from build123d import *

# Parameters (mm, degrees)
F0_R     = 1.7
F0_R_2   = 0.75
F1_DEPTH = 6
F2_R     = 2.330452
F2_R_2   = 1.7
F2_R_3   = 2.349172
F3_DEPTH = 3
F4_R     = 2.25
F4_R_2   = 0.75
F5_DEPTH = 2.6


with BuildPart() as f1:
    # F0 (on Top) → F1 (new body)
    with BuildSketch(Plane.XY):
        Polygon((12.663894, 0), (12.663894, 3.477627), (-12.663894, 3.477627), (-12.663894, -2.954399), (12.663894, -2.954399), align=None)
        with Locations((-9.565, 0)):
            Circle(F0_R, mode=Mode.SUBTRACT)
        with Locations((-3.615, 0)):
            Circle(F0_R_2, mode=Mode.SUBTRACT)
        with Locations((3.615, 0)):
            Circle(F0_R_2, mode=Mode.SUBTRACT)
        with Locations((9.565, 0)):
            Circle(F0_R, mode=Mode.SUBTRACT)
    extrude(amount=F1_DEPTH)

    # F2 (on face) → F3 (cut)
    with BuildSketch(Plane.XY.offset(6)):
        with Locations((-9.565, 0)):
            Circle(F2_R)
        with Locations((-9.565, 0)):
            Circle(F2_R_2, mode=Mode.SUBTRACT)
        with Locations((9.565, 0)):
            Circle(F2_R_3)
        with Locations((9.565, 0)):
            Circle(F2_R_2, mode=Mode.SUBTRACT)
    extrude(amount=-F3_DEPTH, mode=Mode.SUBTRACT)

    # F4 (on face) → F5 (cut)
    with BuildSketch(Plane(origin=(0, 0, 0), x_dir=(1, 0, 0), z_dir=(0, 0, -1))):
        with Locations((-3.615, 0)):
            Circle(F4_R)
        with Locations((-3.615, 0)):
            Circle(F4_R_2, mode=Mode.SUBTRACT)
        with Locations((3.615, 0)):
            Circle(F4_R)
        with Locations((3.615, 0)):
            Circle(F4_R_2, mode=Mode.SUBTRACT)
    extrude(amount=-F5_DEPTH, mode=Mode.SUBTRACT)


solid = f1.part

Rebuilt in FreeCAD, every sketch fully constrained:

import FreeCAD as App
import Part
import Sketcher

V = App.Vector
Q = App.Units.Quantity


def add_polygon(sketch, points):
    """Adds a closed chain of lines whose ends are joined by coincident constraints."""
    first, n = sketch.GeometryCount, len(points)
    for a, b in zip(points, points[1:] + points[:1]):
        sketch.addGeometry(Part.LineSegment(App.Vector(*a, 0), App.Vector(*b, 0)), False)
    for i in range(n):
        sketch.addConstraint(Sketcher.Constraint("Coincident", first + i, 2, first + (i + 1) % n, 1))

doc = App.newDocument("Part")
body = doc.addObject("PartDesign::Body", "Body")

# Sketch on XY plane
sketch1 = body.newObject("Sketcher::SketchObject", "Sketch")
sketch1.AttachmentSupport = (doc.getObject("XY_Plane"), [""])
sketch1.MapMode = "FlatFace"
add_polygon(sketch1, [(12.7, 3.5), (-12.7, 3.5), (-12.7, -3), (12.7, -3)])  # lines 0-3
sketch1.addGeometry(Part.Circle(V(-9.6, 0, 0), V(0, 0, 1), 1.7), False)  # 4
sketch1.addGeometry(Part.Circle(V(-3.6, 0, 0), V(0, 0, 1), 0.8), False)  # 5
sketch1.addGeometry(Part.Circle(V(3.6, 0, 0), V(0, 0, 1), 0.8), False)  # 6
sketch1.addGeometry(Part.Circle(V(9.6, 0, 0), V(0, 0, 1), 1.7), False)  # 7
sketch1.addConstraint([
    Sketcher.Constraint("Horizontal", 0),
    Sketcher.Constraint("Vertical", 1),
    Sketcher.Constraint("Horizontal", 2),
    Sketcher.Constraint("Vertical", 3),
    Sketcher.Constraint("Equal", 5, 6),
    Sketcher.Constraint("Equal", 4, 7),
    Sketcher.Constraint("Symmetric", 5, 3, 6, 3, -1, 1),
    Sketcher.Constraint("Symmetric", 4, 3, 7, 3, -1, 1),
    Sketcher.Constraint("PointOnObject", 4, 3, -1),
    Sketcher.Constraint("PointOnObject", 5, 3, -1),
    Sketcher.Constraint("Diameter", 4, Q("3.4 mm")),
    Sketcher.Constraint("Diameter", 5, Q("1.5 mm")),
    Sketcher.Constraint("DistanceX", 4, 3, 5, 3, Q("5.95 mm")),
    Sketcher.Constraint("DistanceX", 5, 3, 6, 3, Q("7.23 mm")),
    Sketcher.Constraint("DistanceX", 0, 2, 0, 1, Q("25.327788 mm")),
    Sketcher.Constraint("DistanceY", 1, 2, -1, 1, Q("2.954399 mm")),
    Sketcher.Constraint("DistanceY", 1, 2, 1, 1, Q("6.432026 mm")),
    Sketcher.Constraint("DistanceX", 0, 2, -1, 1, Q("12.663894 mm")),
])
pad1 = body.newObject("PartDesign::Pad", "Pad")
pad1.Profile = sketch1
pad1.Length = 6

# Sketch on XY plane
sketch2 = body.newObject("Sketcher::SketchObject", "Sketch001")
sketch2.AttachmentSupport = (doc.getObject("XY_Plane"), [""])
sketch2.MapMode = "FlatFace"
sketch2.AttachmentOffset = App.Placement(V(0, 0, 6), App.Rotation())
sketch2.addGeometry([
    Part.Circle(V(-9.6, 0, 0), V(0, 0, 1), 2.3),
    Part.Circle(V(-9.6, 0, 0), V(0, 0, 1), 1.7),
    Part.Circle(V(9.6, 0, 0), V(0, 0, 1), 2.3),
    Part.Circle(V(9.6, 0, 0), V(0, 0, 1), 1.7),
], False)
sketch2.addConstraint([
    Sketcher.Constraint("Coincident", 1, 3, 0, 3),
    Sketcher.Constraint("Coincident", 3, 3, 2, 3),
    Sketcher.Constraint("Equal", 1, 3),
    Sketcher.Constraint("Symmetric", 0, 3, 2, 3, -1, 1),
    Sketcher.Constraint("PointOnObject", 0, 3, -1),
    Sketcher.Constraint("Diameter", 1, Q("3.4 mm")),
    Sketcher.Constraint("DistanceX", 0, 3, 2, 3, Q("19.13 mm")),
    Sketcher.Constraint("Diameter", 0, Q("4.660904 mm")),
    Sketcher.Constraint("Diameter", 2, Q("4.698344 mm")),
])
pocket1 = body.newObject("PartDesign::Pocket", "Pocket")
pocket1.Profile = sketch2
pocket1.Length = 3

# Sketch on XY plane
sketch3 = body.newObject("Sketcher::SketchObject", "Sketch002")
sketch3.AttachmentSupport = (doc.getObject("XY_Plane"), [""])
sketch3.MapMode = "FlatFace"
sketch3.addGeometry([
    Part.Circle(V(-3.6, 0, 0), V(0, 0, 1), 2.2),
    Part.Circle(V(-3.6, 0, 0), V(0, 0, 1), 0.8),
    Part.Circle(V(3.6, 0, 0), V(0, 0, 1), 2.2),
    Part.Circle(V(3.6, 0, 0), V(0, 0, 1), 0.8),
], False)
sketch3.addConstraint([
    Sketcher.Constraint("Coincident", 1, 3, 0, 3),
    Sketcher.Constraint("Coincident", 3, 3, 2, 3),
    Sketcher.Constraint("Equal", 0, 2),
    Sketcher.Constraint("Equal", 1, 3),
    Sketcher.Constraint("Symmetric", 0, 3, 2, 3, -1, 1),
    Sketcher.Constraint("PointOnObject", 0, 3, -1),
    Sketcher.Constraint("Diameter", 0, Q("4.5 mm")),
    Sketcher.Constraint("Diameter", 1, Q("1.5 mm")),
    Sketcher.Constraint("DistanceX", 0, 3, 2, 3, Q("7.23 mm")),
])
pocket2 = body.newObject("PartDesign::Pocket", "Pocket001")
pocket2.Profile = sketch3
pocket2.Length = 2.6
pocket2.Reversed = True

doc.recompute()
